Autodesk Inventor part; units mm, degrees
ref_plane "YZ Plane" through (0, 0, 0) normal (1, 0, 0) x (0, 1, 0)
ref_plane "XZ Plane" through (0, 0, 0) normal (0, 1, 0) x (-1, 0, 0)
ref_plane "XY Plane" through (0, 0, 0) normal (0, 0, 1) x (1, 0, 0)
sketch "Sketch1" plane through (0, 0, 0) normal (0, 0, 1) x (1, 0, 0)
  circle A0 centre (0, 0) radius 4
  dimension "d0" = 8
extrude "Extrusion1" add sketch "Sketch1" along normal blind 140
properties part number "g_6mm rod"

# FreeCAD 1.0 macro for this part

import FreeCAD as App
import Part
import Sketcher
from FreeCAD import Vector
Q = App.Units.Quantity

doc = App.newDocument("Part")
body = doc.addObject("PartDesign::Body", "Body")

# Sketch on XY plane
sketch1 = body.newObject("Sketcher::SketchObject", "Sketch")
sketch1.AttachmentSupport = (doc.getObject("XY_Plane"), [""])
sketch1.MapMode = "FlatFace"
sketch1.addGeometry(Part.Circle(Vector(0, 0, 0), Vector(0, 0, 1), 4), False)
sketch1.addConstraint(Sketcher.Constraint("Coincident", 0, 3, -1, 1))
sketch1.addConstraint(Sketcher.Constraint("Diameter", 0, Q("8 mm")))
pad1 = body.newObject("PartDesign::Pad", "Pad")
pad1.Profile = sketch1
pad1.Length = 140

doc.recompute()
